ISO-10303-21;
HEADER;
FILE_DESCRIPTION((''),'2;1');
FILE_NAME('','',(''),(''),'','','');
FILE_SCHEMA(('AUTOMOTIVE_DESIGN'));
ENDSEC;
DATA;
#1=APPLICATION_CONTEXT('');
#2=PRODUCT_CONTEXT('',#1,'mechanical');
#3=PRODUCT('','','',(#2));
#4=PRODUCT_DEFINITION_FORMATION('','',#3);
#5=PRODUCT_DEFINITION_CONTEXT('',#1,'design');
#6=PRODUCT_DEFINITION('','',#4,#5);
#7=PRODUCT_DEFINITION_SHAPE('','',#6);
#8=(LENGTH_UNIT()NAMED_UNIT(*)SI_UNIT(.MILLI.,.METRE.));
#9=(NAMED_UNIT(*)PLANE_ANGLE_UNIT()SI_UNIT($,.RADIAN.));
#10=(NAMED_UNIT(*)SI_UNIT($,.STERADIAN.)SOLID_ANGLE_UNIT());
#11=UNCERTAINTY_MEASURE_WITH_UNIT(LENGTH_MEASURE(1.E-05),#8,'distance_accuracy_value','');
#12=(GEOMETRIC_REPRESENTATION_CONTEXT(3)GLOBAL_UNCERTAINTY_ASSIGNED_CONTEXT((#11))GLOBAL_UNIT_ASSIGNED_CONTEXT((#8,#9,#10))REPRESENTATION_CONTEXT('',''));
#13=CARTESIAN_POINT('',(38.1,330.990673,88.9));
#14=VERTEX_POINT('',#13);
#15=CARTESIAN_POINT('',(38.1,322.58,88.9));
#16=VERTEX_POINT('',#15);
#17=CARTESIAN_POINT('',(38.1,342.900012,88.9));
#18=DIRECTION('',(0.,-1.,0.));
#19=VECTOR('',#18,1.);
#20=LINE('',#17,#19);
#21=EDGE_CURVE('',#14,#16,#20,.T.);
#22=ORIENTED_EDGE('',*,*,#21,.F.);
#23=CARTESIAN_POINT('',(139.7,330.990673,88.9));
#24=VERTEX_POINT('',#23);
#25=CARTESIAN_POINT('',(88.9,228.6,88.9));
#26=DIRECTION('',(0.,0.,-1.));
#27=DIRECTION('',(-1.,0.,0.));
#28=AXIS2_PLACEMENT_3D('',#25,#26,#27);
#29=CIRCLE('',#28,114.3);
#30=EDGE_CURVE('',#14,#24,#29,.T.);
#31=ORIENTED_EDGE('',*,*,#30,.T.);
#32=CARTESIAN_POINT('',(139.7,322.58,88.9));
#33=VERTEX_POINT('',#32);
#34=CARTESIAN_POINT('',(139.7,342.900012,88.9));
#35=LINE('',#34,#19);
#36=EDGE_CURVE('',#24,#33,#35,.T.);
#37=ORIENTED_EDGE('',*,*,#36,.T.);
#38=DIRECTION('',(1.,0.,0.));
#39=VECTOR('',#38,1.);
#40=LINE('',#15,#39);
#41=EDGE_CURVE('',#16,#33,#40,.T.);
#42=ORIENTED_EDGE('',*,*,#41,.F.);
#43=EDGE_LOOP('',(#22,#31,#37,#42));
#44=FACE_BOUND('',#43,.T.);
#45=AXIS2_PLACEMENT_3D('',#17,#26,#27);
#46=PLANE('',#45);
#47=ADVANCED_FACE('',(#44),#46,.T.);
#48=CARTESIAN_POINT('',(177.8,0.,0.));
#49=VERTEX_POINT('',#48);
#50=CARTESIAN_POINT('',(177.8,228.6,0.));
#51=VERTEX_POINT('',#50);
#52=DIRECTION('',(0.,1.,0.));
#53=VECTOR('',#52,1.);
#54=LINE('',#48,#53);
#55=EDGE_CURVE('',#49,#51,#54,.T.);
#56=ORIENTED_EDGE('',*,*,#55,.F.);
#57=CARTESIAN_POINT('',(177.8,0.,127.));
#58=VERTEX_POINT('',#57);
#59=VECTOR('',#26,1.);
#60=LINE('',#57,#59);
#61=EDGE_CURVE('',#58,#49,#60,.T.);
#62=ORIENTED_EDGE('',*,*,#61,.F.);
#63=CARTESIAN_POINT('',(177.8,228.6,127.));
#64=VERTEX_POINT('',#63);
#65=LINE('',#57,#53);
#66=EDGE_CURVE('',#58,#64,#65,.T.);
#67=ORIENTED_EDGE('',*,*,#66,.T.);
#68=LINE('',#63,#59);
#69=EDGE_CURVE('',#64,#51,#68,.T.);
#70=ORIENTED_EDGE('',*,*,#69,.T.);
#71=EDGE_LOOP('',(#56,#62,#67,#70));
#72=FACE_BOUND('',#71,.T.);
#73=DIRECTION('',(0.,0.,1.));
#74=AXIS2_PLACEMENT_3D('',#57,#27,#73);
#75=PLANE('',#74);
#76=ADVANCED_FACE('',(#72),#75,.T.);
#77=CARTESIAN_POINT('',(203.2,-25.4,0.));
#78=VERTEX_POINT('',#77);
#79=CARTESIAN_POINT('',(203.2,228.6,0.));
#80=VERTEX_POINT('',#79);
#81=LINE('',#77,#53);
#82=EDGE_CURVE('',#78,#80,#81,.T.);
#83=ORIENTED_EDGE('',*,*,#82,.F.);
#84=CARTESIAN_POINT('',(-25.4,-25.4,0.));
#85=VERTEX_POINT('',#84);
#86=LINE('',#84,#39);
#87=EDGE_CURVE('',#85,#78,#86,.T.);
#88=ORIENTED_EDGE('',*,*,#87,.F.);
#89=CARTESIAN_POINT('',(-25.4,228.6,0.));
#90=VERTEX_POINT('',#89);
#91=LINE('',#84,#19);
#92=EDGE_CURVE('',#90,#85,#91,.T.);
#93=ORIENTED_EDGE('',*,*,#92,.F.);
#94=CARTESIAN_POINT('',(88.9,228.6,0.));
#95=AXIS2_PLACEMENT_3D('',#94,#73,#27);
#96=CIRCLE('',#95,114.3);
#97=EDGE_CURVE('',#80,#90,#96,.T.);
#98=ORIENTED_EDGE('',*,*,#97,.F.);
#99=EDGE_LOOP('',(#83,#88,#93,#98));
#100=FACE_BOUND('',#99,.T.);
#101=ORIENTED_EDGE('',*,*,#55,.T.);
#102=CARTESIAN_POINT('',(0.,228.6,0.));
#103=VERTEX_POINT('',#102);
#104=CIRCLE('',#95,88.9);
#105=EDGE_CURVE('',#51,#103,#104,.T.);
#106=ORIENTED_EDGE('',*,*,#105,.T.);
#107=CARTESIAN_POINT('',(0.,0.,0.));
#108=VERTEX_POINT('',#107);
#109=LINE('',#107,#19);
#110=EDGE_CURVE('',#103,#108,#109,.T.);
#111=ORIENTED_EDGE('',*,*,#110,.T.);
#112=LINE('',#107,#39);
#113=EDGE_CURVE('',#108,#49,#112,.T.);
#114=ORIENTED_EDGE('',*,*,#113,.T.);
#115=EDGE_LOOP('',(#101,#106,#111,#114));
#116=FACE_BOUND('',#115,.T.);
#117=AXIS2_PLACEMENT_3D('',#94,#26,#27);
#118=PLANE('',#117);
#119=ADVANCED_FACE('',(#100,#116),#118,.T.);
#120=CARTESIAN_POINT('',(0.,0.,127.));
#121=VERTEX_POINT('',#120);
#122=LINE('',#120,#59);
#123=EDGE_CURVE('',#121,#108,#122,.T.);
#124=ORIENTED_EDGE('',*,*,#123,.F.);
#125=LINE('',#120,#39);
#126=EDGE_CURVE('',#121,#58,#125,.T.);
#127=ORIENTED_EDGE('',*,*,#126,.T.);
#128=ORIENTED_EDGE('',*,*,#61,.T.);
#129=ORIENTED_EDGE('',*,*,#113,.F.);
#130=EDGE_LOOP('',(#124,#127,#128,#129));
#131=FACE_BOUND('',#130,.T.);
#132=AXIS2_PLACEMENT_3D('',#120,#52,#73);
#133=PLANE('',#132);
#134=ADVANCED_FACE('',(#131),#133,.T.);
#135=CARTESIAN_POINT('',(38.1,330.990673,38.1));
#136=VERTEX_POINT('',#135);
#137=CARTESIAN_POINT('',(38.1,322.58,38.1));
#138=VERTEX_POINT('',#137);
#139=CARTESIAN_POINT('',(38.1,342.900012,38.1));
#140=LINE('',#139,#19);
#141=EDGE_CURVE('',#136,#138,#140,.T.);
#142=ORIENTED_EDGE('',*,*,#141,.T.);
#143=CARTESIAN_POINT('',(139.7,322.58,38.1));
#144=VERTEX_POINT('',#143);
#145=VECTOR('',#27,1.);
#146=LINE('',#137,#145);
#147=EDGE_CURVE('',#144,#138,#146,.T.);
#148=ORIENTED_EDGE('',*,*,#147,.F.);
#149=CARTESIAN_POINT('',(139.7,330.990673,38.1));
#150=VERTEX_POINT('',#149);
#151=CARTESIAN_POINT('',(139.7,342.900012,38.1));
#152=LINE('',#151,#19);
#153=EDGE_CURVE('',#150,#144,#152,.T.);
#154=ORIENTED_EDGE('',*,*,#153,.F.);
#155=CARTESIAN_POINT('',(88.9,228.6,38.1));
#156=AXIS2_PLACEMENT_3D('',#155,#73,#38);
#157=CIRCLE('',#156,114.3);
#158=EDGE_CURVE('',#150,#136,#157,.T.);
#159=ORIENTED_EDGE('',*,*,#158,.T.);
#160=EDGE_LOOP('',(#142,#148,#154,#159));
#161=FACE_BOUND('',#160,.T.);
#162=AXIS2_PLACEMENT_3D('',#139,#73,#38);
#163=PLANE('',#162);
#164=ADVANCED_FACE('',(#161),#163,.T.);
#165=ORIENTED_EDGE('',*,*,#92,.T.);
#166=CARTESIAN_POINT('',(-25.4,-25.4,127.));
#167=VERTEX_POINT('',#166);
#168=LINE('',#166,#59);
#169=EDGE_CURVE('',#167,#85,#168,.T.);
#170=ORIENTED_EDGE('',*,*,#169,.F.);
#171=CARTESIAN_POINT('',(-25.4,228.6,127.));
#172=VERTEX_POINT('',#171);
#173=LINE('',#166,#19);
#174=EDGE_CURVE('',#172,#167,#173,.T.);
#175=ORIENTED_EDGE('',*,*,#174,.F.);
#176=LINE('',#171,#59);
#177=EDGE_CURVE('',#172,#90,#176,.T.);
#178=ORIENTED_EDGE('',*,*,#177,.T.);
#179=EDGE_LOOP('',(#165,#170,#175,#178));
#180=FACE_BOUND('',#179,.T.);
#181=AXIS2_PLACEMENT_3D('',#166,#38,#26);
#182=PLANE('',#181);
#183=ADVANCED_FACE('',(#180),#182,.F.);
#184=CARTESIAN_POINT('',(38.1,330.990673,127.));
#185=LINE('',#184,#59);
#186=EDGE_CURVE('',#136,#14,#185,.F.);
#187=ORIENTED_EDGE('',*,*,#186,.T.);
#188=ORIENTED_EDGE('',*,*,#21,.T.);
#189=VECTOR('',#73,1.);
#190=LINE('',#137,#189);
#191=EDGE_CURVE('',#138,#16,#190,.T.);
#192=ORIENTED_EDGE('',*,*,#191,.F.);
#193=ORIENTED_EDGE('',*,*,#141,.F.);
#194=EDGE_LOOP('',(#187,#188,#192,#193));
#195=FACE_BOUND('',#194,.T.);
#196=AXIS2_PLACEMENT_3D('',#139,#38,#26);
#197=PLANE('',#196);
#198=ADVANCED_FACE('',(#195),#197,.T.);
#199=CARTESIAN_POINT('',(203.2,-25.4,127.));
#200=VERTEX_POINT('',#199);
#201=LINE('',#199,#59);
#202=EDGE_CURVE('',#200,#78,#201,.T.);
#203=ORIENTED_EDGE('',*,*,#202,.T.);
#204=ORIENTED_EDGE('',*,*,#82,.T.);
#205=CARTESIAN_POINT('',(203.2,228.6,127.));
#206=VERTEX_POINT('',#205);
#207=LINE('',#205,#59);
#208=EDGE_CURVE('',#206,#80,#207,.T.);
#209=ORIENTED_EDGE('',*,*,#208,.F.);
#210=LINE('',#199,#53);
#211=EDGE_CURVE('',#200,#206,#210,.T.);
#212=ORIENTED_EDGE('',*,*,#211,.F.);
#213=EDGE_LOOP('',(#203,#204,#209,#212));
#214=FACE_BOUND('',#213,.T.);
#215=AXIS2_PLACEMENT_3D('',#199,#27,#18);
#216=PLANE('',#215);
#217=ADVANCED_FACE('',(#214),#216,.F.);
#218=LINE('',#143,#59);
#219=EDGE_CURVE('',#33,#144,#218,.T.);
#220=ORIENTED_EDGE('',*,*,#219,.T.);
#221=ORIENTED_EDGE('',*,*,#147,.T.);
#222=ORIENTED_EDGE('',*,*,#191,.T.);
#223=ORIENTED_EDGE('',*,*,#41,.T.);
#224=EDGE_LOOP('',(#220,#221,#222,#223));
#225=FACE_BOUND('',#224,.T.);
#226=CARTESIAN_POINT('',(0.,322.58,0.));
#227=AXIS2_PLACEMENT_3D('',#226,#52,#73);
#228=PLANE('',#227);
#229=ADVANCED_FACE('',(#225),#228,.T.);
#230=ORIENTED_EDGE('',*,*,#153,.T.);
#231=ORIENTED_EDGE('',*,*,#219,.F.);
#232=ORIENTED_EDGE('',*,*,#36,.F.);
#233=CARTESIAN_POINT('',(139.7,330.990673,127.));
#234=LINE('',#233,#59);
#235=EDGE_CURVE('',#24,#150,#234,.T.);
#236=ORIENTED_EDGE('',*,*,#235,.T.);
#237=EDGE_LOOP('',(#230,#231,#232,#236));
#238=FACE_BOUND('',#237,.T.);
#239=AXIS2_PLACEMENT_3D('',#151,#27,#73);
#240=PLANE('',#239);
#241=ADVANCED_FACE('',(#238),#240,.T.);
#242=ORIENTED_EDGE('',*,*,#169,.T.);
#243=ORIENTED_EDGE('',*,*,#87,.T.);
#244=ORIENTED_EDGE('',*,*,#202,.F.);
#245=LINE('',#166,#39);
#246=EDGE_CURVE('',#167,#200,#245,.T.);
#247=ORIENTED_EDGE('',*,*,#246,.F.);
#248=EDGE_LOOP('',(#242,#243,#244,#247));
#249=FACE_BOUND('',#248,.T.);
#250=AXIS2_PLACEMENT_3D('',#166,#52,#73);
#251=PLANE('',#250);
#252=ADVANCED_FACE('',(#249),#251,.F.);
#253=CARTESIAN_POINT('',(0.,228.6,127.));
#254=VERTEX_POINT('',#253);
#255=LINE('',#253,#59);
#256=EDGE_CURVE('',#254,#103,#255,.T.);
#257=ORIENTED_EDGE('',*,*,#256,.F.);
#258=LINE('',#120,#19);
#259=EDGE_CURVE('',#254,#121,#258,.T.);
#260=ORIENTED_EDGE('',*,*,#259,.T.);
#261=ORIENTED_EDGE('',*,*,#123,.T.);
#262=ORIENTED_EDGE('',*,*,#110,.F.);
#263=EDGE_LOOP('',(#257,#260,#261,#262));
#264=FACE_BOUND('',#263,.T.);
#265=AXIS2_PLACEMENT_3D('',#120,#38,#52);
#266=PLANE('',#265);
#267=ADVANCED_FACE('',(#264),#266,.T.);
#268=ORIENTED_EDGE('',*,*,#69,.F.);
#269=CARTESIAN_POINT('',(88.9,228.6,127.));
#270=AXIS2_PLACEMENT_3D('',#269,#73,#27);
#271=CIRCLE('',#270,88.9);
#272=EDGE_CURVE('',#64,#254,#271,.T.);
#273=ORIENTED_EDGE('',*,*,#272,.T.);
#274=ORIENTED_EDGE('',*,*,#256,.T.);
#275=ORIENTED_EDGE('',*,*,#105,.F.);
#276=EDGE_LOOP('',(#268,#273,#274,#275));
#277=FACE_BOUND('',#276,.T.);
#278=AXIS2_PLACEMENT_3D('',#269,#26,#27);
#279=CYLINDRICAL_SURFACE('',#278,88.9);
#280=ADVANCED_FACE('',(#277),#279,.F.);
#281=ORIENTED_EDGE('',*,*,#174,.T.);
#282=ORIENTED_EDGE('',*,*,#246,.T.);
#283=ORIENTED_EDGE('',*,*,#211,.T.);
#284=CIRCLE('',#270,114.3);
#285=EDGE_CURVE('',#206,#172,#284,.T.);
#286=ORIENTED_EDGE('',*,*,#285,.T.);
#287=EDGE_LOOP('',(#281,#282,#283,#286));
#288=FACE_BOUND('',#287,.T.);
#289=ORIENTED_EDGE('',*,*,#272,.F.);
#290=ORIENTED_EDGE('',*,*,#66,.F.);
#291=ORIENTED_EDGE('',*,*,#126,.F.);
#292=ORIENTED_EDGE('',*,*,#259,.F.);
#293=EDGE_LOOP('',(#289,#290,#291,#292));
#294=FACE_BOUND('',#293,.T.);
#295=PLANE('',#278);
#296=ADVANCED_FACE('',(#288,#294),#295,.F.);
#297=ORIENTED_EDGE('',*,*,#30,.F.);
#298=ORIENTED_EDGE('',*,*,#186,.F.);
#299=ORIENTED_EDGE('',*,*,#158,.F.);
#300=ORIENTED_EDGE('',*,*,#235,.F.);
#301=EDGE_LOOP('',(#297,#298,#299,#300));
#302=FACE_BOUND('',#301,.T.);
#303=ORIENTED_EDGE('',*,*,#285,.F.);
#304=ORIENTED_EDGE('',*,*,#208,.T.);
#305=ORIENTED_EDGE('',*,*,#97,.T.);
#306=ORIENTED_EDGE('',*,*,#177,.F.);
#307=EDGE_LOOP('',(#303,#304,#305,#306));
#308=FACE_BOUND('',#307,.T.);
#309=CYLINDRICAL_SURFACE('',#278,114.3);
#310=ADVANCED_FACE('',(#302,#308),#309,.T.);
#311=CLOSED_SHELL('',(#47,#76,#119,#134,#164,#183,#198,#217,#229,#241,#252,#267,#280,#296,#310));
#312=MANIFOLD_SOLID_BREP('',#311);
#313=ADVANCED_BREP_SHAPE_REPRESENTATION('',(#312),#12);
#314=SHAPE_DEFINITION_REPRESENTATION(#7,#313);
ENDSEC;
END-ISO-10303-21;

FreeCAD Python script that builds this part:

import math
import FreeCAD as App
import Part
import Sketcher

V = App.Vector
Q = App.Units.Quantity


def add_polygon(sketch, points):
    """Adds a closed chain of lines whose ends are joined by coincident constraints."""
    first, n = sketch.GeometryCount, len(points)
    for a, b in zip(points, points[1:] + points[:1]):
        sketch.addGeometry(Part.LineSegment(App.Vector(*a, 0), App.Vector(*b, 0)), False)
    for i in range(n):
        sketch.addConstraint(Sketcher.Constraint("Coincident", first + i, 2, first + (i + 1) % n, 1))

doc = App.newDocument("Part")
params = doc.addObject("Spreadsheet::Sheet", "Params")
for row, (alias, value) in enumerate([
    ("sketch1_radius", "4.5 in"),
    ("sketch1_radius2", "3.5 in"),
    ("sketch1_height", "10 in"),
    ("pad1_length", "5 in"),
    ("sketch2_width", "4 in"),
    ("sketch2_height", "2 in"),
    ("pocket1_length", "440.390635 mm"),
    ("pocket1_length2", "0.8 in"),
], start=1):
    params.set(f"A{row}", alias)
    params.set(f"B{row}", "=" + value)
    params.setAlias(f"B{row}", alias)

body = doc.addObject("PartDesign::Body", "Body")

sketch1 = doc.addObject("Sketcher::SketchObject", "Sketch")
body.addObject(sketch1)
sketch1.AttachmentSupport = (doc.XY_Plane, [""])
sketch1.MapMode = "FlatFace"
sketch1.addGeometry([
    Part.LineSegment(V(-25, 229, 0), V(-25, -25, 0)),
    Part.LineSegment(V(-25, -25, 0), V(203, -25, 0)),
    Part.LineSegment(V(203, -25, 0), V(203, 229, 0)),
    Part.ArcOfCircle(Part.Circle(V(89, 229, 0), V(0, 0, 1), 114), math.radians(0), math.radians(180)),
    Part.LineSegment(V(0, 0, 0), V(0, 229, 0)),
    Part.ArcOfCircle(Part.Circle(V(89, 229, 0), V(0, 0, 1), 89), math.radians(0), math.radians(180)),
    Part.LineSegment(V(178, 229, 0), V(178, 0, 0)),
    Part.LineSegment(V(178, 0, 0), V(0, 0, 0)),
], False)
sketch1.addConstraint([
    Sketcher.Constraint("Coincident", 0, 2, 1, 1),
    Sketcher.Constraint("Coincident", 1, 2, 2, 1),
    Sketcher.Constraint("Tangent", 2, 2, 3, 1),
    Sketcher.Constraint("Tangent", 3, 2, 0, 1),
    Sketcher.Constraint("Tangent", 4, 2, 5, 2),
    Sketcher.Constraint("Tangent", 5, 1, 6, 1),
    Sketcher.Constraint("Coincident", 6, 2, 7, 1),
    Sketcher.Constraint("Coincident", 7, 2, 4, 1),
    Sketcher.Constraint("Vertical", 0),
    Sketcher.Constraint("Horizontal", 1),
    Sketcher.Constraint("Vertical", 2),
    Sketcher.Constraint("Vertical", 4),
    Sketcher.Constraint("Vertical", 6),
    Sketcher.Constraint("Horizontal", 7),
    Sketcher.Constraint("Coincident", 7, 2, -1, 1),
    Sketcher.Constraint("Coincident", 5, 3, 3, 3),
    Sketcher.Constraint("Equal", 1, 4),
    Sketcher.Constraint("Radius", 3, Q("4.5 in")),
    Sketcher.Constraint("Radius", 5, Q("3.5 in")),
    Sketcher.Constraint("DistanceY", 0, 2, 0, 1, Q("10 in")),
])
sketch1.setExpression("Constraints[17]", "Params.sketch1_radius")
sketch1.setExpression("Constraints[18]", "Params.sketch1_radius2")
sketch1.setExpression("Constraints[19]", "Params.sketch1_height")
pad1 = doc.addObject("PartDesign::Pad", "Pad")
body.addObject(pad1)
pad1.Profile = sketch1
pad1.setExpression("Length", "Params.pad1_length")

sketch2 = doc.addObject("Sketcher::SketchObject", "Sketch001")
body.addObject(sketch2)
sketch2.AttachmentSupport = (doc.XZ_Plane, [""])
sketch2.MapMode = "FlatFace"
sketch2.AttachmentOffset = App.Placement(V(0, 0, -13.5 * 25.4), App.Rotation())
add_polygon(sketch2, [(38, 38), (38, 89), (140, 89), (140, 38)])
sketch2.addConstraint([
    Sketcher.Constraint("Vertical", 0),
    Sketcher.Constraint("Horizontal", 1),
    Sketcher.Constraint("Vertical", 2),
    Sketcher.Constraint("Horizontal", 3),
    Sketcher.Constraint("DistanceX", 1, 1, 1, 2, Q("4 in")),
    Sketcher.Constraint("DistanceY", 0, 1, 0, 2, Q("2 in")),
    Sketcher.Constraint("DistanceX", -1, 1, 0, 2, Q("1.5 in")),
    Sketcher.Constraint("DistanceY", -1, 1, 0, 2, Q("3.5 in")),
])
sketch2.setExpression("Constraints[8]", "Params.sketch2_width")
sketch2.setExpression("Constraints[9]", "Params.sketch2_height")
pocket1 = doc.addObject("PartDesign::Pocket", "Pocket")
body.addObject(pocket1)
pocket1.Profile = sketch2
pocket1.Type = "TwoLengths"
pocket1.setExpression("Length", "Params.pocket1_length")
pocket1.setExpression("Length2", "Params.pocket1_length2")

doc.recompute()
